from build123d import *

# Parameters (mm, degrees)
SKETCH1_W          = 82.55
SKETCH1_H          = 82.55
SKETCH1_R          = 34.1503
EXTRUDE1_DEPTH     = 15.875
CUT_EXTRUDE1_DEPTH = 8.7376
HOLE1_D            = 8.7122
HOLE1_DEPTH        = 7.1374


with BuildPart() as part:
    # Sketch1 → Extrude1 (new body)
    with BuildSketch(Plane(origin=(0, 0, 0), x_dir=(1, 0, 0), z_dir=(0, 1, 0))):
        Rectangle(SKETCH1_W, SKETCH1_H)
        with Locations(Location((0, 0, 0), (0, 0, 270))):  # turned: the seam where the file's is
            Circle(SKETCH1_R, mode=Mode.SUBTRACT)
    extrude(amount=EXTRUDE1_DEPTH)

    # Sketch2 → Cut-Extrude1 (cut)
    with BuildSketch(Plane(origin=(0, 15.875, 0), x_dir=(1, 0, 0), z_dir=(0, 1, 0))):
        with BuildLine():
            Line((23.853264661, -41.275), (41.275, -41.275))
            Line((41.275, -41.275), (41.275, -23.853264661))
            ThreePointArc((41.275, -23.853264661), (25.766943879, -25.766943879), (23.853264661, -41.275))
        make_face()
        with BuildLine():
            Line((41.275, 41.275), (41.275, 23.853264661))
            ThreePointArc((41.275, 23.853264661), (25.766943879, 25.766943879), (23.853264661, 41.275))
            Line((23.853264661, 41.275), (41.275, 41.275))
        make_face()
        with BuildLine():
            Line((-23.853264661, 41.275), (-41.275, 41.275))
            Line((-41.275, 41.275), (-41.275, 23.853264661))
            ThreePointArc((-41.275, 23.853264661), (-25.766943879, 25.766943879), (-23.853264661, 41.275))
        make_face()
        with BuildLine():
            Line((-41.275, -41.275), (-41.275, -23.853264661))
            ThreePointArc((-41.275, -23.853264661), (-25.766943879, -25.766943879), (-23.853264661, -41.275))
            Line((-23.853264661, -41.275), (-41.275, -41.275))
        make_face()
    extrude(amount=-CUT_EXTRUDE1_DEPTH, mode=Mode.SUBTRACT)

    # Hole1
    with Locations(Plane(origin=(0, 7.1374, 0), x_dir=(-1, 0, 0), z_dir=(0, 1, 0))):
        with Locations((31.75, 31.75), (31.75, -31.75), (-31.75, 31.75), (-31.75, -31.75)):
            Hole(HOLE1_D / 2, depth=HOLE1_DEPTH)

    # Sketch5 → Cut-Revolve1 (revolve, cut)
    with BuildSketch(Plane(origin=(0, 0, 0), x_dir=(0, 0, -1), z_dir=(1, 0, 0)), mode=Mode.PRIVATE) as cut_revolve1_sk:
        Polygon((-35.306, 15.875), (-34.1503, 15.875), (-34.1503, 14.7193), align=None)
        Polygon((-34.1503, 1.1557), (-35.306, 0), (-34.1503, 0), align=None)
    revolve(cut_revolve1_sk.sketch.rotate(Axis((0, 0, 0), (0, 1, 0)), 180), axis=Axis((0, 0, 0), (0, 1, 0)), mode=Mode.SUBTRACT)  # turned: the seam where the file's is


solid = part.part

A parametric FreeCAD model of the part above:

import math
import FreeCAD as App
import Part
import Sketcher
from FreeCAD import Vector
Q = App.Units.Quantity


def add_polygon(sketch, points):
    """Adds a closed chain of lines whose ends are joined by coincident constraints."""
    first, n = sketch.GeometryCount, len(points)
    for a, b in zip(points, points[1:] + points[:1]):
        sketch.addGeometry(Part.LineSegment(App.Vector(*a, 0), App.Vector(*b, 0)), False)
    for i in range(n):
        sketch.addConstraint(Sketcher.Constraint("Coincident", first + i, 2, first + (i + 1) % n, 1))

doc = App.newDocument("Part")
body = doc.addObject("PartDesign::Body", "Body")

sketch1 = doc.addObject("Sketcher::SketchObject", "Sketch")
body.addObject(sketch1)
sketch1.AttachmentSupport = (doc.XZ_Plane, [""])
sketch1.MapMode = "FlatFace"
add_polygon(sketch1, [(-41, -41), (-41, 41), (41, 41), (41, -41)])
sketch1.addGeometry(Part.Circle(Vector(0, 0, 0), Vector(0, 0, 1), 34), False)
sketch1.addConstraint(Sketcher.Constraint("Vertical", 0))
sketch1.addConstraint(Sketcher.Constraint("Horizontal", 1))
sketch1.addConstraint(Sketcher.Constraint("Vertical", 2))
sketch1.addConstraint(Sketcher.Constraint("Horizontal", 3))
sketch1.addConstraint(Sketcher.Constraint("Coincident", 4, 3, -1, 1))
sketch1.addConstraint(Sketcher.Constraint("Symmetric", 0, 2, 2, 2, -1, 1))
sketch1.addConstraint(Sketcher.Constraint("Equal", 3, 0))
sketch1.addConstraint(Sketcher.Constraint("Diameter", 4, Q("2.689 in")))
sketch1.addConstraint(Sketcher.Constraint("DistanceX", 1, 1, 1, 2, Q("3.25 in")))
pad1 = doc.addObject("PartDesign::Pad", "Pad")
body.addObject(pad1)
pad1.Profile = sketch1
pad1.Length = Q("0.625 in")
pad1.Reversed = True

sketch2 = doc.addObject("Sketcher::SketchObject", "Sketch001")
body.addObject(sketch2)
sketch2.AttachmentSupport = (doc.XZ_Plane, [""])
sketch2.MapMode = "FlatFace"
sketch2.AttachmentOffset = App.Placement(Vector(0, 0, -0.625 * 25.4), App.Rotation())
sketch2.addGeometry(Part.LineSegment(Vector(24, 41, 0), Vector(41, 41, 0)), False)
sketch2.addGeometry(Part.LineSegment(Vector(41, 41, 0), Vector(41, 24, 0)), False)
sketch2.addGeometry(Part.ArcOfCircle(Part.Circle(Vector(35, 35, 0), Vector(0, 0, 1), 13), math.radians(149), math.radians(301)), False)
sketch2.addGeometry(Part.LineSegment(Vector(41, -24, 0), Vector(41, -41, 0)), False)
sketch2.addGeometry(Part.LineSegment(Vector(41, -41, 0), Vector(24, -41, 0)), False)
sketch2.addGeometry(Part.ArcOfCircle(Part.Circle(Vector(35, -35, 0), Vector(0, 0, 1), 13), math.radians(59), math.radians(211)), False)
sketch2.addGeometry(Part.LineSegment(Vector(-24, -41, 0), Vector(-41, -41, 0)), False)
sketch2.addGeometry(Part.LineSegment(Vector(-41, -41, 0), Vector(-41, -24, 0)), False)
sketch2.addGeometry(Part.ArcOfCircle(Part.Circle(Vector(-35, -35, 0), Vector(0, 0, 1), 13), math.radians(-31), math.radians(121)), False)
sketch2.addGeometry(Part.LineSegment(Vector(-41, 24, 0), Vector(-41, 41, 0)), False)
sketch2.addGeometry(Part.LineSegment(Vector(-41, 41, 0), Vector(-24, 41, 0)), False)
sketch2.addGeometry(Part.ArcOfCircle(Part.Circle(Vector(-35, 35, 0), Vector(0, 0, 1), 13), math.radians(-121), math.radians(31)), False)
sketch2.addConstraint(Sketcher.Constraint("Coincident", 0, 2, 1, 1))
sketch2.addConstraint(Sketcher.Constraint("Coincident", 1, 2, 2, 2))
sketch2.addConstraint(Sketcher.Constraint("Coincident", 2, 1, 0, 1))
sketch2.addConstraint(Sketcher.Constraint("Coincident", 3, 2, 4, 1))
sketch2.addConstraint(Sketcher.Constraint("Coincident", 4, 2, 5, 2))
sketch2.addConstraint(Sketcher.Constraint("Coincident", 5, 1, 3, 1))
sketch2.addConstraint(Sketcher.Constraint("Coincident", 6, 2, 7, 1))
sketch2.addConstraint(Sketcher.Constraint("Coincident", 7, 2, 8, 2))
sketch2.addConstraint(Sketcher.Constraint("Coincident", 8, 1, 6, 1))
sketch2.addConstraint(Sketcher.Constraint("Coincident", 9, 2, 10, 1))
sketch2.addConstraint(Sketcher.Constraint("Coincident", 10, 2, 11, 2))
sketch2.addConstraint(Sketcher.Constraint("Coincident", 11, 1, 9, 1))
sketch2.addConstraint(Sketcher.Constraint("Horizontal", 0))
sketch2.addConstraint(Sketcher.Constraint("Vertical", 1))
sketch2.addConstraint(Sketcher.Constraint("Vertical", 3))
sketch2.addConstraint(Sketcher.Constraint("Horizontal", 4))
sketch2.addConstraint(Sketcher.Constraint("Horizontal", 6))
sketch2.addConstraint(Sketcher.Constraint("Vertical", 7))
sketch2.addConstraint(Sketcher.Constraint("Vertical", 9))
sketch2.addConstraint(Sketcher.Constraint("Horizontal", 10))
sketch2.addConstraint(Sketcher.Constraint("Equal", 2, 5))
sketch2.addConstraint(Sketcher.Constraint("Equal", 5, 8))
sketch2.addConstraint(Sketcher.Constraint("Equal", 8, 11))
sketch2.addConstraint(Sketcher.Constraint("Symmetric", 2, 3, 8, 3, -1, 1))
sketch2.addConstraint(Sketcher.Constraint("Symmetric", 5, 3, 11, 3, -1, 1))
sketch2.addConstraint(Sketcher.Constraint("Symmetric", 0, 2, 6, 2, -1, 1))
sketch2.addConstraint(Sketcher.Constraint("Symmetric", 3, 2, 9, 2, -1, 1))
sketch2.addConstraint(Sketcher.Constraint("Symmetric", 5, 3, 8, 3, -2))
sketch2.addConstraint(Sketcher.Constraint("Symmetric", 3, 2, 6, 2, -2))
sketch2.addConstraint(Sketcher.Constraint("Equal", 10, 1))
sketch2.addConstraint(Sketcher.Constraint("Radius", 2, Q("0.5 in")))
sketch2.addConstraint(Sketcher.Constraint("DistanceY", 3, 2, 0, 2, Q("3.25 in")))
sketch2.addConstraint(Sketcher.Constraint("DistanceX", 6, 2, 3, 2, Q("3.25 in")))
sketch2.addConstraint(Sketcher.Constraint("DistanceX", -1, 1, 2, 3, Q("1.368 in")))
pocket1 = doc.addObject("PartDesign::Pocket", "Pocket")
body.addObject(pocket1)
pocket1.Profile = sketch2
pocket1.Length = Q("0.344 in")
pocket1.Reversed = True

sketch3 = doc.addObject("Sketcher::SketchObject", "Sketch002")
body.addObject(sketch3)
sketch3.AttachmentSupport = (doc.XZ_Plane, [""])
sketch3.MapMode = "FlatFace"
sketch3.AttachmentOffset = App.Placement(Vector(0, 0, -0.281 * 25.4), App.Rotation())
sketch3.addGeometry(Part.Circle(Vector(-31.8, 31.8, 0), Vector(0, 0, 1), 4.4), False)
sketch3.addGeometry(Part.Circle(Vector(-31.8, -31.8, 0), Vector(0, 0, 1), 4.4), False)
sketch3.addGeometry(Part.Circle(Vector(31.8, 31.8, 0), Vector(0, 0, 1), 4.4), False)
sketch3.addGeometry(Part.Circle(Vector(31.8, -31.8, 0), Vector(0, 0, 1), 4.4), False)
sketch3.addConstraint(Sketcher.Constraint("Equal", 0, 1))
sketch3.addConstraint(Sketcher.Constraint("Equal", 1, 2))
sketch3.addConstraint(Sketcher.Constraint("Equal", 2, 3))
sketch3.addConstraint(Sketcher.Constraint("Symmetric", 1, 3, 2, 3, -1, 1))
sketch3.addConstraint(Sketcher.Constraint("Symmetric", 0, 3, 3, 3, -1, 1))
sketch3.addConstraint(Sketcher.Constraint("Symmetric", 0, 3, 2, 3, -2))
sketch3.addConstraint(Sketcher.Constraint("Diameter", 0, Q("0.343 in")))
sketch3.addConstraint(Sketcher.Constraint("DistanceY", 1, 3, 0, 3, Q("2.5 in")))
sketch3.addConstraint(Sketcher.Constraint("DistanceX", 0, 3, 2, 3, Q("2.5 in")))
doc.recompute()
hole = doc.addObject("PartDesign::Hole", "Hole")
body.addObject(hole)
hole.Profile = sketch3
hole.ThreadType = "None"
hole.Diameter = Q("0.343 in")
hole.DepthType = "Dimension"
hole.Depth = Q("0.281 in")
hole.DrillPoint = "Flat"
hole.Reversed = True

sketch4 = doc.addObject("Sketcher::SketchObject", "Sketch003")
body.addObject(sketch4)
sketch4.AttachmentSupport = (doc.YZ_Plane, [""])
sketch4.MapMode = "FlatFace"
add_polygon(sketch4, [(15.9, 34.2), (15.9, 35.3), (14.7, 34.2)])
add_polygon(sketch4, [(1.2, 34.2), (0, 35.3), (0, 34.2)])
sketch4.addConstraint(Sketcher.Constraint("Vertical", 0))
sketch4.addConstraint(Sketcher.Constraint("Horizontal", 2))
sketch4.addConstraint(Sketcher.Constraint("Vertical", 4))
sketch4.addConstraint(Sketcher.Constraint("Horizontal", 5))
sketch4.addConstraint(Sketcher.Constraint("PointOnObject", 3, 2, -2))
sketch4.addConstraint(Sketcher.Constraint("Perpendicular", 1, 3))
sketch4.addConstraint(Sketcher.Constraint("Horizontal", 0, 2, 3, 2))
sketch4.addConstraint(Sketcher.Constraint("Horizontal", 2, 2, 4, 2))
sketch4.addConstraint(Sketcher.Constraint("Equal", 2, 5))
sketch4.addConstraint(Sketcher.Constraint("DistanceY", -1, 1, 0, 2, Q("1.39 in")))
sketch4.addConstraint(Sketcher.Constraint("DistanceX", 2, 1, 2, 2, Q("0.0455 in")))
sketch4.addConstraint(Sketcher.Constraint("DistanceX", -1, 1, 0, 2, Q("0.625 in")))
groove = doc.addObject("PartDesign::Groove", "Groove")
body.addObject(groove)
groove.Profile = sketch4
groove.ReferenceAxis = (sketch4, ["H_Axis"])
groove.Angle = 360

doc.recompute()
